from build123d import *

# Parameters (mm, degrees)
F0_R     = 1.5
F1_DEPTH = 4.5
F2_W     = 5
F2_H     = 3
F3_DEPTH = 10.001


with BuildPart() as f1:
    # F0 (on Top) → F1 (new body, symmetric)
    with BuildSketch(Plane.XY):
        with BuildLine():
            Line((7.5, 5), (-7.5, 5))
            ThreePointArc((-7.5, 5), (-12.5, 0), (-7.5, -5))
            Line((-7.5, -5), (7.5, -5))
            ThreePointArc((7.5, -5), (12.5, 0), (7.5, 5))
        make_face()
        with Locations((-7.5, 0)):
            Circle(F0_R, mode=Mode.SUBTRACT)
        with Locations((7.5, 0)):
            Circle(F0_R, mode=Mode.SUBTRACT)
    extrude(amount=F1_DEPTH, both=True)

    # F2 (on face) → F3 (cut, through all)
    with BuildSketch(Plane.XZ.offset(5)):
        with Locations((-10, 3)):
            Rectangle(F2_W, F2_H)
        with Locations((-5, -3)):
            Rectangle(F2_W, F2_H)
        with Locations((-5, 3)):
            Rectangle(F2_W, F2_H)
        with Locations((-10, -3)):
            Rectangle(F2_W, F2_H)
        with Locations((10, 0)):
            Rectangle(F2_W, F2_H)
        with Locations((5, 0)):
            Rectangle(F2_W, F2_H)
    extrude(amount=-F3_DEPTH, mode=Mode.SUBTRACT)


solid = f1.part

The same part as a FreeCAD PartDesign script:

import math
import FreeCAD as App
import Part
import Sketcher
from FreeCAD import Vector
Q = App.Units.Quantity

doc = App.newDocument("Part")
params = doc.addObject("Spreadsheet::Sheet", "Params")
for row, (alias, value) in enumerate([
    ("sketch1_diameter", "3 mm"),
    ("sketch1_radius", "5 mm"),
    ("sketch1_width", "15 mm"),
    ("pad1_length", "9 mm"),
    ("sketch2_width", "10 mm"),
    ("sketch2_height", "3 mm"),
], start=1):
    params.set(f"A{row}", alias)
    params.set(f"B{row}", "=" + value)
    params.setAlias(f"B{row}", alias)

body = doc.addObject("PartDesign::Body", "Body")

# Sketch on XY plane
sketch1 = doc.addObject("Sketcher::SketchObject", "Sketch")
body.addObject(sketch1)
sketch1.AttachmentSupport = (doc.XY_Plane, [""])
sketch1.MapMode = "FlatFace"
sketch1.addGeometry([
    Part.LineSegment(Vector(7.5, 5, 0), Vector(-7.5, 5, 0)),  # 0
    Part.ArcOfCircle(Part.Circle(Vector(-7.5, 0, 0), Vector(0, 0, 1), 5), math.radians(90), math.radians(270)),  # 1
    Part.LineSegment(Vector(-7.5, -5, 0), Vector(7.5, -5, 0)),  # 2
    Part.ArcOfCircle(Part.Circle(Vector(7.5, 0, 0), Vector(0, 0, 1), 5), math.radians(-90), math.radians(90)),  # 3
    Part.Circle(Vector(-7.5, 0, 0), Vector(0, 0, 1), 1.5),  # 4
    Part.Circle(Vector(7.5, 0, 0), Vector(0, 0, 1), 1.5),  # 5
], False)
sketch1.addConstraint([
    Sketcher.Constraint("Tangent", 0, 2, 1, 1),
    Sketcher.Constraint("Tangent", 1, 2, 2, 1),
    Sketcher.Constraint("Tangent", 2, 2, 3, 1),
    Sketcher.Constraint("Tangent", 3, 2, 0, 1),
    Sketcher.Constraint("Horizontal", 0),
    Sketcher.Constraint("Horizontal", 2),
    Sketcher.Constraint("Coincident", 4, 3, 1, 3),
    Sketcher.Constraint("Coincident", 5, 3, 3, 3),
    Sketcher.Constraint("Equal", 4, 5),
    Sketcher.Constraint("Symmetric", 1, 3, 3, 3, -1, 1),
    Sketcher.Constraint("Diameter", 4, Q("3 mm")),
    Sketcher.Constraint("Radius", 1, Q("5 mm")),
    Sketcher.Constraint("DistanceX", 0, 2, 0, 1, Q("15 mm")),
])
sketch1.setExpression("Constraints[10]", "Params.sketch1_diameter")
sketch1.setExpression("Constraints[11]", "Params.sketch1_radius")
sketch1.setExpression("Constraints[12]", "Params.sketch1_width")
pad1 = doc.addObject("PartDesign::Pad", "Pad")
body.addObject(pad1)
pad1.Profile = sketch1
pad1.setExpression("Length", "Params.pad1_length")
pad1.Midplane = True

# Sketch on XZ plane
sketch2 = doc.addObject("Sketcher::SketchObject", "Sketch001")
body.addObject(sketch2)
sketch2.AttachmentSupport = (doc.XZ_Plane, [""])
sketch2.MapMode = "FlatFace"
sketch2.AttachmentOffset = App.Placement(Vector(0, 0, 5), App.Rotation())
sketch2.addGeometry([
    Part.LineSegment(Vector(-12.5, 4.5, 0), Vector(-12.5, 1.5, 0)),  # 0
    Part.LineSegment(Vector(-12.5, 1.5, 0), Vector(-2.5, 1.5, 0)),  # 1
    Part.LineSegment(Vector(-2.5, 1.5, 0), Vector(-2.5, 4.5, 0)),  # 2
    Part.LineSegment(Vector(-2.5, 4.5, 0), Vector(-12.5, 4.5, 0)),  # 3
    Part.LineSegment(Vector(-2.5, -4.5, 0), Vector(-2.5, -1.5, 0)),  # 4
    Part.LineSegment(Vector(-2.5, -1.5, 0), Vector(-12.5, -1.5, 0)),  # 5
    Part.LineSegment(Vector(-12.5, -1.5, 0), Vector(-12.5, -4.5, 0)),  # 6
    Part.LineSegment(Vector(-12.5, -4.5, 0), Vector(-2.5, -4.5, 0)),  # 7
    Part.LineSegment(Vector(12.5, -1.5, 0), Vector(12.5, 1.5, 0)),  # 8
    Part.LineSegment(Vector(12.5, 1.5, 0), Vector(2.5, 1.5, 0)),  # 9
    Part.LineSegment(Vector(2.5, 1.5, 0), Vector(2.5, -1.5, 0)),  # 10
    Part.LineSegment(Vector(2.5, -1.5, 0), Vector(12.5, -1.5, 0)),  # 11
], False)
sketch2.addConstraint([
    Sketcher.Constraint("Coincident", 0, 2, 1, 1),
    Sketcher.Constraint("Coincident", 1, 2, 2, 1),
    Sketcher.Constraint("Coincident", 2, 2, 3, 1),
    Sketcher.Constraint("Coincident", 3, 2, 0, 1),
    Sketcher.Constraint("Coincident", 4, 2, 5, 1),
    Sketcher.Constraint("Coincident", 5, 2, 6, 1),
    Sketcher.Constraint("Coincident", 6, 2, 7, 1),
    Sketcher.Constraint("Coincident", 7, 2, 4, 1),
    Sketcher.Constraint("Coincident", 8, 2, 9, 1),
    Sketcher.Constraint("Coincident", 9, 2, 10, 1),
    Sketcher.Constraint("Coincident", 10, 2, 11, 1),
    Sketcher.Constraint("Coincident", 11, 2, 8, 1),
    Sketcher.Constraint("Vertical", 0),
    Sketcher.Constraint("Horizontal", 1),
    Sketcher.Constraint("Vertical", 2),
    Sketcher.Constraint("Horizontal", 3),
    Sketcher.Constraint("Vertical", 4),
    Sketcher.Constraint("Horizontal", 5),
    Sketcher.Constraint("Vertical", 6),
    Sketcher.Constraint("Horizontal", 7),
    Sketcher.Constraint("Vertical", 8),
    Sketcher.Constraint("Horizontal", 9),
    Sketcher.Constraint("Vertical", 10),
    Sketcher.Constraint("Horizontal", 11),
    Sketcher.Constraint("Symmetric", 5, 2, 8, 2, -1, 1),
    Sketcher.Constraint("Symmetric", 1, 2, 10, 2, -1, 1),
    Sketcher.Constraint("Symmetric", 0, 2, 8, 2, -2),
    Sketcher.Constraint("Symmetric", 2, 2, 7, 2, -1),
    Sketcher.Constraint("Equal", 6, 8),
    Sketcher.Constraint("DistanceX", 1, 1, 1, 2, Q("10 mm")),
    Sketcher.Constraint("DistanceY", 0, 2, 0, 1, Q("3 mm")),
    Sketcher.Constraint("DistanceX", 1, 2, 8, 2, Q("15 mm")),
])
sketch2.setExpression("Constraints[29]", "Params.sketch2_width")
sketch2.setExpression("Constraints[30]", "Params.sketch2_height")
pocket1 = doc.addObject("PartDesign::Pocket", "Pocket")
body.addObject(pocket1)
pocket1.Profile = sketch2
pocket1.Type = "ThroughAll"

doc.recompute()
